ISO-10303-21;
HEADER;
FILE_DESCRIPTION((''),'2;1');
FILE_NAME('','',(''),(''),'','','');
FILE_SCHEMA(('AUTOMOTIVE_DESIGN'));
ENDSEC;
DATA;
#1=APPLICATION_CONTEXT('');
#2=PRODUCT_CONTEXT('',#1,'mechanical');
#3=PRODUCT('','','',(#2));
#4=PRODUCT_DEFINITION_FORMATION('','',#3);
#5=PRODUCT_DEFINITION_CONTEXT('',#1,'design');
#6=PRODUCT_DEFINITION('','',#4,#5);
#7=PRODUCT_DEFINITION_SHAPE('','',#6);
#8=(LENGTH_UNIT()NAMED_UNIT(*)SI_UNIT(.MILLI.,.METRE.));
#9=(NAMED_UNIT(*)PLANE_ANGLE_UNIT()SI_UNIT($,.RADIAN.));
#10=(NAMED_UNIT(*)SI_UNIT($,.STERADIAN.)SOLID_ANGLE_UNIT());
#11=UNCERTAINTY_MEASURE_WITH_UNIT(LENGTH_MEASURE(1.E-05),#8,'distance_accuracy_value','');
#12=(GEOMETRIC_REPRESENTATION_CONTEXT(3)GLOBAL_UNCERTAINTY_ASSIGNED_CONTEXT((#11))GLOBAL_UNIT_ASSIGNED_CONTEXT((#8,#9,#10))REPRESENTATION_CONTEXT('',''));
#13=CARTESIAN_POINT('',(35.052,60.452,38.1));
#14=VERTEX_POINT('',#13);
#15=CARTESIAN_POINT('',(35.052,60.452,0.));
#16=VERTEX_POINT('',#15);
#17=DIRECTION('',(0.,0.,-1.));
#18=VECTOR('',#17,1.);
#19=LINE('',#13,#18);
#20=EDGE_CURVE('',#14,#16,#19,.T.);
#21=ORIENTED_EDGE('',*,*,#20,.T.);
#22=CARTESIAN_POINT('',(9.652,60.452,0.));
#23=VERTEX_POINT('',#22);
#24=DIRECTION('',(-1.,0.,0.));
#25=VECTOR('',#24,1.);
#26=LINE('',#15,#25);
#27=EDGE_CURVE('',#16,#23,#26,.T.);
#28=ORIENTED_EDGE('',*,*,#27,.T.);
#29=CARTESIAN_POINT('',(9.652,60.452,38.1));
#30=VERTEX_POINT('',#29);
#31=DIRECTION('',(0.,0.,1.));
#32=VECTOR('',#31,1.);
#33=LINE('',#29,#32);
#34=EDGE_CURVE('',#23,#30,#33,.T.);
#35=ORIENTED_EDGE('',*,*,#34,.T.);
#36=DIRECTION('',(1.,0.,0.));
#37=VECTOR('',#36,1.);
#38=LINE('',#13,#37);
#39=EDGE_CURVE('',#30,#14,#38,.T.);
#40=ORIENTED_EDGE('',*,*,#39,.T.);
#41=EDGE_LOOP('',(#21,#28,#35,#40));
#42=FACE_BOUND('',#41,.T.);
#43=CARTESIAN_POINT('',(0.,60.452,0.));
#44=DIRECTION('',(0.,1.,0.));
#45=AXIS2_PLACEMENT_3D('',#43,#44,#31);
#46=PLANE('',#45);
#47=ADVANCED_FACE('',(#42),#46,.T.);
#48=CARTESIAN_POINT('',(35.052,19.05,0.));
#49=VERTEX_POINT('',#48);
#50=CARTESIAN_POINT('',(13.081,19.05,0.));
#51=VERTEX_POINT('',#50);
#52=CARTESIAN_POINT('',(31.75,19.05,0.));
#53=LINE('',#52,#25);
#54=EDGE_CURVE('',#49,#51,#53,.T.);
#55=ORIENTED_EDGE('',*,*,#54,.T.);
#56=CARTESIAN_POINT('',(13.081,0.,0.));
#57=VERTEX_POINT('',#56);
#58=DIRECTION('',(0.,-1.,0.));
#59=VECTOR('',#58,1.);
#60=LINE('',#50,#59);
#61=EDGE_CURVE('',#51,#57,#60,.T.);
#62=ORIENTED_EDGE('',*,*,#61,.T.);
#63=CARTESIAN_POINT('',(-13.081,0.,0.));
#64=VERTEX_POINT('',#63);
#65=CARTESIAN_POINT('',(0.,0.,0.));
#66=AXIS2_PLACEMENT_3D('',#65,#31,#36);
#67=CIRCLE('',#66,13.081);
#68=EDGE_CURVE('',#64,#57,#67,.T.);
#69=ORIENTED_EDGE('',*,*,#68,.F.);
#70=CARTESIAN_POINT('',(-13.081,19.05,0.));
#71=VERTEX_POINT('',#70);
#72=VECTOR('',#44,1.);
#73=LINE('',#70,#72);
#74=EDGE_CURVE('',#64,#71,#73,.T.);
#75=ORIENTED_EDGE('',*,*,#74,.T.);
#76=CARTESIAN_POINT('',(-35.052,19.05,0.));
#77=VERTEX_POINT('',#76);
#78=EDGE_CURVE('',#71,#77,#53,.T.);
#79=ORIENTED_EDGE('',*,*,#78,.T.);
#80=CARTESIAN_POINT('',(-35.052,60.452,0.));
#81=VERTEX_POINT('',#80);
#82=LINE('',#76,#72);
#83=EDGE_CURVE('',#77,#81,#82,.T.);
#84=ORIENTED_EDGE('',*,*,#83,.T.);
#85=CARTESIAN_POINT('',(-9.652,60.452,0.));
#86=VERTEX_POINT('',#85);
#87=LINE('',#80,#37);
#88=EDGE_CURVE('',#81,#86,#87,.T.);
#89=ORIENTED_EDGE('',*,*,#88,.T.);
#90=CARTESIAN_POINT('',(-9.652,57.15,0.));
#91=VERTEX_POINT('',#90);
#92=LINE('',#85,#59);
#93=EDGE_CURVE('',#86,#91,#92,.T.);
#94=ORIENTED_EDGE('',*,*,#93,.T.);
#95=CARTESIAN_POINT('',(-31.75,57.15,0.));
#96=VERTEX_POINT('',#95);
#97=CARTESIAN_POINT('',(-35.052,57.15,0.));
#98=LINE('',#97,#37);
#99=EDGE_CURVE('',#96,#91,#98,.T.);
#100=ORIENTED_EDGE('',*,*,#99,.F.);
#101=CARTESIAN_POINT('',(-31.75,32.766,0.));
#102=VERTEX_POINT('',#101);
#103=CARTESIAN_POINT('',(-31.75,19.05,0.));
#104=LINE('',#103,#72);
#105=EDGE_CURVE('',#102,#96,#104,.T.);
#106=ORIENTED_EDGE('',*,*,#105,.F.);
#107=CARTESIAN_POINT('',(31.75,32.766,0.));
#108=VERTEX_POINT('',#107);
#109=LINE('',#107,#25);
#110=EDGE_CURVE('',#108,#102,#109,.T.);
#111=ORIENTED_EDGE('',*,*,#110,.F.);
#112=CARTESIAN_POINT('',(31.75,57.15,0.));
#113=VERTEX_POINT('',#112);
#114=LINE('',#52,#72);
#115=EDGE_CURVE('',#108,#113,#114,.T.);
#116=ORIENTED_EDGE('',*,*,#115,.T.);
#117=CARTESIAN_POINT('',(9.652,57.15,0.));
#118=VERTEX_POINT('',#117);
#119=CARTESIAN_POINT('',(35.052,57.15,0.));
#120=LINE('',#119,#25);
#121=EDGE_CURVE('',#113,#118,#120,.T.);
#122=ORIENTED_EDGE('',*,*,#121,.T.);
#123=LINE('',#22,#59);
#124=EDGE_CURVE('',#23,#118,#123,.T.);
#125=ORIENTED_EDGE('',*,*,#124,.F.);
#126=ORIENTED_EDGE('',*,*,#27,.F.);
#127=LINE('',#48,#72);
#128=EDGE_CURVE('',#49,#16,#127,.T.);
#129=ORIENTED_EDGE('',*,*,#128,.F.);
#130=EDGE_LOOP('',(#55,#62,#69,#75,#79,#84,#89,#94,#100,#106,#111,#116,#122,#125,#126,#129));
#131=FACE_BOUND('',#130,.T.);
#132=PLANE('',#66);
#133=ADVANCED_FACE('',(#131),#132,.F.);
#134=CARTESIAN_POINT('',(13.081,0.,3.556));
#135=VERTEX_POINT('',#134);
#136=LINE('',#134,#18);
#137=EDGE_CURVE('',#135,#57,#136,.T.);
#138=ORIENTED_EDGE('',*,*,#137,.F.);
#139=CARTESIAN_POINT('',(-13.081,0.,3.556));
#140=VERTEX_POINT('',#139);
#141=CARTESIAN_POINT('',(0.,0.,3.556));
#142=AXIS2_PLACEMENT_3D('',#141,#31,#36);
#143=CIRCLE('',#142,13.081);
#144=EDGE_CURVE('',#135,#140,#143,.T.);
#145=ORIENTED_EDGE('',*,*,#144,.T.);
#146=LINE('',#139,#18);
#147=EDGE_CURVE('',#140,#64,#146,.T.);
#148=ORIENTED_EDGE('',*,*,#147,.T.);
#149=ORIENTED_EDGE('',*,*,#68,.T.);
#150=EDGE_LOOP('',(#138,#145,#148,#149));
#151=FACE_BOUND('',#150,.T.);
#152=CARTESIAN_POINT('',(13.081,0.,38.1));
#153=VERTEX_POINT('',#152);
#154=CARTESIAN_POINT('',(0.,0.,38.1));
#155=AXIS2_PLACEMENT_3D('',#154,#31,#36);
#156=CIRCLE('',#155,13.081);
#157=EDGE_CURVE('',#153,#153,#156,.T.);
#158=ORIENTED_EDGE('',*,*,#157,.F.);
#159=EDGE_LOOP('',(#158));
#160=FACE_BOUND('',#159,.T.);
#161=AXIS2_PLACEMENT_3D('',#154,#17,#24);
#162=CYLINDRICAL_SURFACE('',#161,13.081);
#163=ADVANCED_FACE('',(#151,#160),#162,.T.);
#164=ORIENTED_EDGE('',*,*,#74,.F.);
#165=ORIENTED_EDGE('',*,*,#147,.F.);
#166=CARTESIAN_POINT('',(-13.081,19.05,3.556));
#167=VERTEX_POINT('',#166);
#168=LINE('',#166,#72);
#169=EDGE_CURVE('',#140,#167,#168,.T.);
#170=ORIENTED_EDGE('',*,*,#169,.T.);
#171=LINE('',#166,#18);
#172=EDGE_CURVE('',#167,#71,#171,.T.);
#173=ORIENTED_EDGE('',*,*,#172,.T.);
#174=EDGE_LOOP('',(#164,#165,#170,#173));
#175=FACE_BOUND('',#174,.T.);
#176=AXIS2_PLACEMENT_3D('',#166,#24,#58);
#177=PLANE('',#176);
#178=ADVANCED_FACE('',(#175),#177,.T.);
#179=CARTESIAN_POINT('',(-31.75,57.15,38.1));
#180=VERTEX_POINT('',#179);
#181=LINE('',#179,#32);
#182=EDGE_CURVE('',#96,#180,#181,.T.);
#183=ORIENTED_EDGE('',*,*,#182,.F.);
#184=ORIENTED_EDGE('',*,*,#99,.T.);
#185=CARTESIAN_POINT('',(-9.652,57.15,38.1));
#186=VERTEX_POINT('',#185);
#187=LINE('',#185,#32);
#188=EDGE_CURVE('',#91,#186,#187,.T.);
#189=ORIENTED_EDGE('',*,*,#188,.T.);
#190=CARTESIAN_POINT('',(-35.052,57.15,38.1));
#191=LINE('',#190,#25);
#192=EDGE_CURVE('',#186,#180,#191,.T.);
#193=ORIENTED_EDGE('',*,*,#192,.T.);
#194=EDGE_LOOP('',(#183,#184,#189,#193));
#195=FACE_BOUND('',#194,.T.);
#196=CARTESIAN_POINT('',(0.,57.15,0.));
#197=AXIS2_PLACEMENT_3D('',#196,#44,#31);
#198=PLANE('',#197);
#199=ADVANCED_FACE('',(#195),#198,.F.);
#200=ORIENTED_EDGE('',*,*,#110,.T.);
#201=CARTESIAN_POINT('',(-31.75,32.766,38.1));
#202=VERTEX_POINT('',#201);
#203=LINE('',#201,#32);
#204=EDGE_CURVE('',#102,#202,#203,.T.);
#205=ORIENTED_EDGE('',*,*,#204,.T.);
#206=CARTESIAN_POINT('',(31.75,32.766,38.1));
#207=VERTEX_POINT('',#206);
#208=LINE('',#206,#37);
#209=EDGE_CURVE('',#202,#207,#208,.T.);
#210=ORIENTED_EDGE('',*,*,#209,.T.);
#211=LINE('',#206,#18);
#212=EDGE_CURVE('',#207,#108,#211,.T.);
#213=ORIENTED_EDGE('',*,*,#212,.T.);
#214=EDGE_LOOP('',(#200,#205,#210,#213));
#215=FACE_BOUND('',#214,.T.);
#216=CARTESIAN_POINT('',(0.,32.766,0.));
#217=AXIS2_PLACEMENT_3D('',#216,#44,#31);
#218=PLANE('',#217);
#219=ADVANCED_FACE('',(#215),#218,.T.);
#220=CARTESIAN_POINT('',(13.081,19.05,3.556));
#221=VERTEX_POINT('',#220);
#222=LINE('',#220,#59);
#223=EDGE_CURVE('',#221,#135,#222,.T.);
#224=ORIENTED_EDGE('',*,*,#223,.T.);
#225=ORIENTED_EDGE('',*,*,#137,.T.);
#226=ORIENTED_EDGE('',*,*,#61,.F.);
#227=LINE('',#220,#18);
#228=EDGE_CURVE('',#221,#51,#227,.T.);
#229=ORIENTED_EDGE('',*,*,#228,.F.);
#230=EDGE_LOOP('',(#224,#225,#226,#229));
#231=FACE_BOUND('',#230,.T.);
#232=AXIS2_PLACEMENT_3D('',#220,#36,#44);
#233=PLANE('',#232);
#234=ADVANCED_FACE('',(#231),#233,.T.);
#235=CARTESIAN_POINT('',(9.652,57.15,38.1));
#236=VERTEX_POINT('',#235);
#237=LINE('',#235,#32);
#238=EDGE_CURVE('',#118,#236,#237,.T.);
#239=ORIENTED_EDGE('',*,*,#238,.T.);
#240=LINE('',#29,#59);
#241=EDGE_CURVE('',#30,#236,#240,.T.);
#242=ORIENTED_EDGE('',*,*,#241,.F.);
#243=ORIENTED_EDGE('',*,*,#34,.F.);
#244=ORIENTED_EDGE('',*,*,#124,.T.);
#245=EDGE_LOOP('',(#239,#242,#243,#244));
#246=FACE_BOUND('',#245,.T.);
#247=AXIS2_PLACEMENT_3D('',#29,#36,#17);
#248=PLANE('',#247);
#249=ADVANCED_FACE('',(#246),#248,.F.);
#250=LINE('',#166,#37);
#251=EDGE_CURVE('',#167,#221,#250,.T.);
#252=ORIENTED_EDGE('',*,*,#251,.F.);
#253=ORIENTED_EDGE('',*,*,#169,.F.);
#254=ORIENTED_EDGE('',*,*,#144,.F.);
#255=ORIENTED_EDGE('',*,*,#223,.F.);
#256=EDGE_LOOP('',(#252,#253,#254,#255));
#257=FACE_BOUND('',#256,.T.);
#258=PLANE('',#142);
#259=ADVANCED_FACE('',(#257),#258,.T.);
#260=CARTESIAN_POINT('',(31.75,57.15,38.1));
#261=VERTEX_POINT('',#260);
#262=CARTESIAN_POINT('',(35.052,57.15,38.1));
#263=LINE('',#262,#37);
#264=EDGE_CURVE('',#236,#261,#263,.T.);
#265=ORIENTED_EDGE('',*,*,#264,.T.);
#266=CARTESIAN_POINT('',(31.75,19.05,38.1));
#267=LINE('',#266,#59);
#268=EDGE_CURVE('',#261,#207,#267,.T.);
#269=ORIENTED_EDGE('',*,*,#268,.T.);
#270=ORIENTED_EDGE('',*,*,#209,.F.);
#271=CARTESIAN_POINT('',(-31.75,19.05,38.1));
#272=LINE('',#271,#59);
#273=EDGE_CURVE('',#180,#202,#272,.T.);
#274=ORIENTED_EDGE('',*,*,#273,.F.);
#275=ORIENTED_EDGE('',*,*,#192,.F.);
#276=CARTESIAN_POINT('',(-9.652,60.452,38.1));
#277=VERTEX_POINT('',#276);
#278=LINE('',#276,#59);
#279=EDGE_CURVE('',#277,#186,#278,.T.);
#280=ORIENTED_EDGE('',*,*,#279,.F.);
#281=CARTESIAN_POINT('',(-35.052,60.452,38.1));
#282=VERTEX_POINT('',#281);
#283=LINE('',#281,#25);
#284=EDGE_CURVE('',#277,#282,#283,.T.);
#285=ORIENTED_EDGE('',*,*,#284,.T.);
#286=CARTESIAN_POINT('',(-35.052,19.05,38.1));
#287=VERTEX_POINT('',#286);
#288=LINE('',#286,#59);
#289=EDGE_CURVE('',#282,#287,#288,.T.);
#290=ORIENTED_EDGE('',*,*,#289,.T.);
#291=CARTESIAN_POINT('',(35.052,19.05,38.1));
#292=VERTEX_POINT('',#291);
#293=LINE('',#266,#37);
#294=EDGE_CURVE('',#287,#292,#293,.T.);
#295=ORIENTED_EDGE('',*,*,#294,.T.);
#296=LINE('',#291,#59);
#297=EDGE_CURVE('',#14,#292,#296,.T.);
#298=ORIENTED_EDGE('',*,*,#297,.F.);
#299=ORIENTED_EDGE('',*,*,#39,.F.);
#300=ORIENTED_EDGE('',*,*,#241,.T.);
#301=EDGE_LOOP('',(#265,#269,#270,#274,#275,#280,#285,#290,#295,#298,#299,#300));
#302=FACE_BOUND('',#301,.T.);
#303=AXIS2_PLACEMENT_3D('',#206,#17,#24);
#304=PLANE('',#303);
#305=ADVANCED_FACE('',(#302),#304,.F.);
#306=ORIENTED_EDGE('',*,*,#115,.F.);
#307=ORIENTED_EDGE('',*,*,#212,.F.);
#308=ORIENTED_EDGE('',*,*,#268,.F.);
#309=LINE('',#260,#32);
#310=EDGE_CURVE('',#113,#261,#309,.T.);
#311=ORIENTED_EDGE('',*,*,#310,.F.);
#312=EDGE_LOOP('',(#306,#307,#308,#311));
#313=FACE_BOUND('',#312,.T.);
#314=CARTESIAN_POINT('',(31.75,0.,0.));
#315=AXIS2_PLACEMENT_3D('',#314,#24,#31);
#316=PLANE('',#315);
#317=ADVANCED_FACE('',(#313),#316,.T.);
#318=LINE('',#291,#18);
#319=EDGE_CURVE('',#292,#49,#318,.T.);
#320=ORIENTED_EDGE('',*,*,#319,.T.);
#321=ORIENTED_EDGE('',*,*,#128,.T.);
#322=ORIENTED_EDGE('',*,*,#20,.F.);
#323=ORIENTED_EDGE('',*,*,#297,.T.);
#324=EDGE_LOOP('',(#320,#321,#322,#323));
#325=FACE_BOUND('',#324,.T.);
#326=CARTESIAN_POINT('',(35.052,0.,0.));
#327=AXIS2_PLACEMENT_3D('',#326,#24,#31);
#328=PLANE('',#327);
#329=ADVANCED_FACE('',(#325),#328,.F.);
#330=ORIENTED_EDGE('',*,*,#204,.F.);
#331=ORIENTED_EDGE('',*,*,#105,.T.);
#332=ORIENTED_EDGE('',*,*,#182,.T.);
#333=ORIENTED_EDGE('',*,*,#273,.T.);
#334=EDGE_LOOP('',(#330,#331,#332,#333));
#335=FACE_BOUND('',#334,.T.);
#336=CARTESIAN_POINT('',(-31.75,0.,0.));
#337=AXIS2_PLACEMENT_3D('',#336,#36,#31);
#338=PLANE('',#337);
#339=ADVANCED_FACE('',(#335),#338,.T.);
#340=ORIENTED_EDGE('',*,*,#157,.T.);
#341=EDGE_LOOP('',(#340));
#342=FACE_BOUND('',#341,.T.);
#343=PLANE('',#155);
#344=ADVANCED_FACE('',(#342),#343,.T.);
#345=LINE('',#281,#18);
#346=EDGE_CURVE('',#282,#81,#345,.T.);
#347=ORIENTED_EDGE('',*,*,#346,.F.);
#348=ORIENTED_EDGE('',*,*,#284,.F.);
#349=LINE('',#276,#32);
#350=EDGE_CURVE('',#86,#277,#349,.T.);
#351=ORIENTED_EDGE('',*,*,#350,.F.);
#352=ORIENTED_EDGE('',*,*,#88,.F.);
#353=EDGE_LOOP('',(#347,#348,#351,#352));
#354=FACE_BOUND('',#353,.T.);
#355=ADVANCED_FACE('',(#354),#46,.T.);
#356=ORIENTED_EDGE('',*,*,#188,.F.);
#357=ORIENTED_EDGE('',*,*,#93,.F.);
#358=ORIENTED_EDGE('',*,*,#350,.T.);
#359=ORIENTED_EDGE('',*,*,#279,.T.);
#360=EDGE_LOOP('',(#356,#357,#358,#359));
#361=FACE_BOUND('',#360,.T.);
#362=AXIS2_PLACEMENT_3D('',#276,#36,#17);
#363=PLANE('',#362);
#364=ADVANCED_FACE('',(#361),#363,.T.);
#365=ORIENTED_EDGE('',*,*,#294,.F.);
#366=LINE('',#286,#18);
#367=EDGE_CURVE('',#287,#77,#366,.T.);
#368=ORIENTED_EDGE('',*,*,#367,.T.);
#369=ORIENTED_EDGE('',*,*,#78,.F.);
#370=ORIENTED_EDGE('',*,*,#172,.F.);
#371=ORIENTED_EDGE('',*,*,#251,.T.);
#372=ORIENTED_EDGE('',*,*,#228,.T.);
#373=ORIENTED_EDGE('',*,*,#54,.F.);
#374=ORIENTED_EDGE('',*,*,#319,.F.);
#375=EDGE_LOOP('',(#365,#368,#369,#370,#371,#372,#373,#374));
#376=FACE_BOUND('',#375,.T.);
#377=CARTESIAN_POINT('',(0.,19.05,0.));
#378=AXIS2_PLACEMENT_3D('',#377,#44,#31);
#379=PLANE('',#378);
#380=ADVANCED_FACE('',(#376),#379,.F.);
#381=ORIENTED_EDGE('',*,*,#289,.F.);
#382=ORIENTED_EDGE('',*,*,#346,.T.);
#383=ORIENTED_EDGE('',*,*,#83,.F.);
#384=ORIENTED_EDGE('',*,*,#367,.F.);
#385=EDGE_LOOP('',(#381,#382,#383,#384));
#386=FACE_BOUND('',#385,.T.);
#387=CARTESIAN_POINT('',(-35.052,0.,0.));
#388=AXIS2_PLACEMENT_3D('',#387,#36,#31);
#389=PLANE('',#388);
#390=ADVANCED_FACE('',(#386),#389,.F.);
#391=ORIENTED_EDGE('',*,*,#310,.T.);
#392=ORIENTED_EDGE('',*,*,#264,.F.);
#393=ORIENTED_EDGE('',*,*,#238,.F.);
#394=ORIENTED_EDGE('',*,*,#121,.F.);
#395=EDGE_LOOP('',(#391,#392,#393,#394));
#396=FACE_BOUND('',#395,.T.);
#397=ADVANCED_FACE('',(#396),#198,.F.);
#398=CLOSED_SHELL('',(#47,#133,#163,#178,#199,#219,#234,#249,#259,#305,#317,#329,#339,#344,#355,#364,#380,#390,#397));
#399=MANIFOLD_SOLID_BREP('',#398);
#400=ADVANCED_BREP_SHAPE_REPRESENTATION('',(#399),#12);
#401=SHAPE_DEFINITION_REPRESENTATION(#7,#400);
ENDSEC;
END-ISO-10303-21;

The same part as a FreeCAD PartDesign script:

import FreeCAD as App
import Part
import Sketcher
from FreeCAD import Vector
Q = App.Units.Quantity

doc = App.newDocument("Part")
body = doc.addObject("PartDesign::Body", "Body")

sketch1 = body.newObject("Sketcher::SketchObject", "Sketch")
sketch1.AttachmentSupport = (doc.getObject("XY_Plane"), [""])
sketch1.MapMode = "FlatFace"
sketch1.addGeometry(Part.Circle(Vector(0, 0, 0), Vector(0, 0, 1), 13.081), False)
sketch1.addConstraint(Sketcher.Constraint("Coincident", 0, 3, -1, 1))
sketch1.addConstraint(Sketcher.Constraint("Diameter", 0, Q("1.03 in")))
pad1 = body.newObject("PartDesign::Pad", "Pad")
pad1.Profile = sketch1
pad1.Length = Q("1.5 in")

sketch2 = body.newObject("Sketcher::SketchObject", "Sketch001")
sketch2.AttachmentSupport = (doc.getObject("XY_Plane"), [""])
sketch2.MapMode = "FlatFace"
sketch2.addGeometry(Part.LineSegment(Vector(13.081, 19.05, 0), Vector(13.081, 0, 0)), False)
sketch2.addGeometry(Part.LineSegment(Vector(13.081, 0, 0), Vector(-13.081, 0, 0)), False)
sketch2.addGeometry(Part.LineSegment(Vector(-13.081, 0, 0), Vector(-13.081, 19.05, 0)), False)
sketch2.addGeometry(Part.LineSegment(Vector(-13.081, 19.05, 0), Vector(13.081, 19.05, 0)), False)
sketch2.addConstraint(Sketcher.Constraint("Coincident", 0, 2, 1, 1))
sketch2.addConstraint(Sketcher.Constraint("Coincident", 1, 2, 2, 1))
sketch2.addConstraint(Sketcher.Constraint("Coincident", 2, 2, 3, 1))
sketch2.addConstraint(Sketcher.Constraint("Coincident", 3, 2, 0, 1))
sketch2.addConstraint(Sketcher.Constraint("Vertical", 0))
sketch2.addConstraint(Sketcher.Constraint("Horizontal", 1))
sketch2.addConstraint(Sketcher.Constraint("Vertical", 2))
sketch2.addConstraint(Sketcher.Constraint("Horizontal", 3))
sketch2.addConstraint(Sketcher.Constraint("Symmetric", 0, 2, 1, 2, -1, 1))
sketch2.addConstraint(Sketcher.Constraint("DistanceX", 1, 2, 1, 1, Q("1.03 in")))
sketch2.addConstraint(Sketcher.Constraint("DistanceY", 0, 2, 0, 1, Q("0.75 in")))
pad2 = body.newObject("PartDesign::Pad", "Pad001")
pad2.Profile = sketch2
pad2.Length = Q("0.14 in")

sketch3 = body.newObject("Sketcher::SketchObject", "Sketch002")
sketch3.AttachmentSupport = (doc.getObject("XZ_Plane"), [""])
sketch3.MapMode = "FlatFace"
sketch3.AttachmentOffset = App.Placement(Vector(0, 0, -0.75 * 25.4), App.Rotation())
sketch3.addGeometry(Part.LineSegment(Vector(-31.75, 0, 0), Vector(-31.75, 38.1, 0)), False)
sketch3.addGeometry(Part.LineSegment(Vector(-31.75, 38.1, 0), Vector(31.75, 38.1, 0)), False)
sketch3.addGeometry(Part.LineSegment(Vector(31.75, 38.1, 0), Vector(31.75, 0, 0)), False)
sketch3.addGeometry(Part.LineSegment(Vector(31.75, 0, 0), Vector(-31.75, 0, 0)), False)
sketch3.addConstraint(Sketcher.Constraint("Coincident", 0, 2, 1, 1))
sketch3.addConstraint(Sketcher.Constraint("Coincident", 1, 2, 2, 1))
sketch3.addConstraint(Sketcher.Constraint("Coincident", 2, 2, 3, 1))
sketch3.addConstraint(Sketcher.Constraint("Coincident", 3, 2, 0, 1))
sketch3.addConstraint(Sketcher.Constraint("Vertical", 0))
sketch3.addConstraint(Sketcher.Constraint("Horizontal", 1))
sketch3.addConstraint(Sketcher.Constraint("Vertical", 2))
sketch3.addConstraint(Sketcher.Constraint("Horizontal", 3))
sketch3.addConstraint(Sketcher.Constraint("Symmetric", 2, 2, 3, 2, -1, 1))
sketch3.addConstraint(Sketcher.Constraint("DistanceX", 1, 1, 1, 2, Q("2.5 in")))
sketch3.addConstraint(Sketcher.Constraint("DistanceY", 0, 1, 0, 2, Q("1.5 in")))
pad3 = body.newObject("PartDesign::Pad", "Pad002")
pad3.Profile = sketch3
pad3.Length = Q("0.54 in")
pad3.Reversed = True

sketch4 = body.newObject("Sketcher::SketchObject", "Sketch003")
sketch4.AttachmentSupport = (doc.getObject("YZ_Plane"), [""])
sketch4.MapMode = "FlatFace"
sketch4.AttachmentOffset = App.Placement(Vector(0, 0, 1.25 * 25.4), App.Rotation())
sketch4.addGeometry(Part.LineSegment(Vector(57.15, 38.1, 0), Vector(19.05, 38.1, 0)), False)
sketch4.addGeometry(Part.LineSegment(Vector(19.05, 38.1, 0), Vector(19.05, 0, 0)), False)
sketch4.addGeometry(Part.LineSegment(Vector(19.05, 0, 0), Vector(57.15, 0, 0)), False)
sketch4.addGeometry(Part.LineSegment(Vector(57.15, 0, 0), Vector(57.15, 38.1, 0)), False)
sketch4.addConstraint(Sketcher.Constraint("Coincident", 0, 2, 1, 1))
sketch4.addConstraint(Sketcher.Constraint("Coincident", 1, 2, 2, 1))
sketch4.addConstraint(Sketcher.Constraint("Coincident", 2, 2, 3, 1))
sketch4.addConstraint(Sketcher.Constraint("Coincident", 3, 2, 0, 1))
sketch4.addConstraint(Sketcher.Constraint("Horizontal", 0))
sketch4.addConstraint(Sketcher.Constraint("Vertical", 1))
sketch4.addConstraint(Sketcher.Constraint("Horizontal", 2))
sketch4.addConstraint(Sketcher.Constraint("Vertical", 3))
sketch4.addConstraint(Sketcher.Constraint("PointOnObject", 1, 2, -1))
sketch4.addConstraint(Sketcher.Constraint("Equal", 2, 1))
sketch4.addConstraint(Sketcher.Constraint("DistanceX", 0, 2, 0, 1, Q("1.5 in")))
sketch4.addConstraint(Sketcher.Constraint("DistanceX", -1, 1, 0, 2, Q("0.75 in")))
pad4 = body.newObject("PartDesign::Pad", "Pad003")
pad4.Profile = sketch4
pad4.Length = Q("0.13 in")
doc.recompute()

mirrored = body.newObject("PartDesign::Mirrored", "Mirrored")
mirrored.Originals = [pad4]
mirrored.MirrorPlane = (doc.getObject("YZ_Plane"), [""])
body.Tip = mirrored

sketch5 = body.newObject("Sketcher::SketchObject", "Sketch004")
sketch5.AttachmentSupport = (doc.getObject("XZ_Plane"), [""])
sketch5.MapMode = "FlatFace"
sketch5.AttachmentOffset = App.Placement(Vector(0, 0, -2.25 * 25.4), App.Rotation())
sketch5.addGeometry(Part.LineSegment(Vector(9.652, 0, 0), Vector(9.652, 38.1, 0)), False)
sketch5.addGeometry(Part.LineSegment(Vector(9.652, 38.1, 0), Vector(35.052, 38.1, 0)), False)
sketch5.addGeometry(Part.LineSegment(Vector(35.052, 38.1, 0), Vector(35.052, 0, 0)), False)
sketch5.addGeometry(Part.LineSegment(Vector(35.052, 0, 0), Vector(9.652, 0, 0)), False)
sketch5.addConstraint(Sketcher.Constraint("Coincident", 0, 2, 1, 1))
sketch5.addConstraint(Sketcher.Constraint("Coincident", 1, 2, 2, 1))
sketch5.addConstraint(Sketcher.Constraint("Coincident", 2, 2, 3, 1))
sketch5.addConstraint(Sketcher.Constraint("Coincident", 3, 2, 0, 1))
sketch5.addConstraint(Sketcher.Constraint("Vertical", 0))
sketch5.addConstraint(Sketcher.Constraint("Horizontal", 1))
sketch5.addConstraint(Sketcher.Constraint("Vertical", 2))
sketch5.addConstraint(Sketcher.Constraint("Horizontal", 3))
sketch5.addConstraint(Sketcher.Constraint("PointOnObject", 2, 2, -1))
sketch5.addConstraint(Sketcher.Constraint("DistanceX", 1, 1, 1, 2, Q("1 in")))
sketch5.addConstraint(Sketcher.Constraint("DistanceY", 0, 1, 0, 2, Q("1.5 in")))
sketch5.addConstraint(Sketcher.Constraint("DistanceX", -1, 1, 0, 2, Q("0.38 in")))
pad5 = body.newObject("PartDesign::Pad", "Pad004")
pad5.Profile = sketch5
pad5.Length = Q("0.13 in")
pad5.Reversed = True
doc.recompute()

mirrored2 = body.newObject("PartDesign::Mirrored", "Mirrored001")
mirrored2.Originals = [pad5]
mirrored2.MirrorPlane = (doc.getObject("YZ_Plane"), [""])
body.Tip = mirrored2

doc.recompute()
